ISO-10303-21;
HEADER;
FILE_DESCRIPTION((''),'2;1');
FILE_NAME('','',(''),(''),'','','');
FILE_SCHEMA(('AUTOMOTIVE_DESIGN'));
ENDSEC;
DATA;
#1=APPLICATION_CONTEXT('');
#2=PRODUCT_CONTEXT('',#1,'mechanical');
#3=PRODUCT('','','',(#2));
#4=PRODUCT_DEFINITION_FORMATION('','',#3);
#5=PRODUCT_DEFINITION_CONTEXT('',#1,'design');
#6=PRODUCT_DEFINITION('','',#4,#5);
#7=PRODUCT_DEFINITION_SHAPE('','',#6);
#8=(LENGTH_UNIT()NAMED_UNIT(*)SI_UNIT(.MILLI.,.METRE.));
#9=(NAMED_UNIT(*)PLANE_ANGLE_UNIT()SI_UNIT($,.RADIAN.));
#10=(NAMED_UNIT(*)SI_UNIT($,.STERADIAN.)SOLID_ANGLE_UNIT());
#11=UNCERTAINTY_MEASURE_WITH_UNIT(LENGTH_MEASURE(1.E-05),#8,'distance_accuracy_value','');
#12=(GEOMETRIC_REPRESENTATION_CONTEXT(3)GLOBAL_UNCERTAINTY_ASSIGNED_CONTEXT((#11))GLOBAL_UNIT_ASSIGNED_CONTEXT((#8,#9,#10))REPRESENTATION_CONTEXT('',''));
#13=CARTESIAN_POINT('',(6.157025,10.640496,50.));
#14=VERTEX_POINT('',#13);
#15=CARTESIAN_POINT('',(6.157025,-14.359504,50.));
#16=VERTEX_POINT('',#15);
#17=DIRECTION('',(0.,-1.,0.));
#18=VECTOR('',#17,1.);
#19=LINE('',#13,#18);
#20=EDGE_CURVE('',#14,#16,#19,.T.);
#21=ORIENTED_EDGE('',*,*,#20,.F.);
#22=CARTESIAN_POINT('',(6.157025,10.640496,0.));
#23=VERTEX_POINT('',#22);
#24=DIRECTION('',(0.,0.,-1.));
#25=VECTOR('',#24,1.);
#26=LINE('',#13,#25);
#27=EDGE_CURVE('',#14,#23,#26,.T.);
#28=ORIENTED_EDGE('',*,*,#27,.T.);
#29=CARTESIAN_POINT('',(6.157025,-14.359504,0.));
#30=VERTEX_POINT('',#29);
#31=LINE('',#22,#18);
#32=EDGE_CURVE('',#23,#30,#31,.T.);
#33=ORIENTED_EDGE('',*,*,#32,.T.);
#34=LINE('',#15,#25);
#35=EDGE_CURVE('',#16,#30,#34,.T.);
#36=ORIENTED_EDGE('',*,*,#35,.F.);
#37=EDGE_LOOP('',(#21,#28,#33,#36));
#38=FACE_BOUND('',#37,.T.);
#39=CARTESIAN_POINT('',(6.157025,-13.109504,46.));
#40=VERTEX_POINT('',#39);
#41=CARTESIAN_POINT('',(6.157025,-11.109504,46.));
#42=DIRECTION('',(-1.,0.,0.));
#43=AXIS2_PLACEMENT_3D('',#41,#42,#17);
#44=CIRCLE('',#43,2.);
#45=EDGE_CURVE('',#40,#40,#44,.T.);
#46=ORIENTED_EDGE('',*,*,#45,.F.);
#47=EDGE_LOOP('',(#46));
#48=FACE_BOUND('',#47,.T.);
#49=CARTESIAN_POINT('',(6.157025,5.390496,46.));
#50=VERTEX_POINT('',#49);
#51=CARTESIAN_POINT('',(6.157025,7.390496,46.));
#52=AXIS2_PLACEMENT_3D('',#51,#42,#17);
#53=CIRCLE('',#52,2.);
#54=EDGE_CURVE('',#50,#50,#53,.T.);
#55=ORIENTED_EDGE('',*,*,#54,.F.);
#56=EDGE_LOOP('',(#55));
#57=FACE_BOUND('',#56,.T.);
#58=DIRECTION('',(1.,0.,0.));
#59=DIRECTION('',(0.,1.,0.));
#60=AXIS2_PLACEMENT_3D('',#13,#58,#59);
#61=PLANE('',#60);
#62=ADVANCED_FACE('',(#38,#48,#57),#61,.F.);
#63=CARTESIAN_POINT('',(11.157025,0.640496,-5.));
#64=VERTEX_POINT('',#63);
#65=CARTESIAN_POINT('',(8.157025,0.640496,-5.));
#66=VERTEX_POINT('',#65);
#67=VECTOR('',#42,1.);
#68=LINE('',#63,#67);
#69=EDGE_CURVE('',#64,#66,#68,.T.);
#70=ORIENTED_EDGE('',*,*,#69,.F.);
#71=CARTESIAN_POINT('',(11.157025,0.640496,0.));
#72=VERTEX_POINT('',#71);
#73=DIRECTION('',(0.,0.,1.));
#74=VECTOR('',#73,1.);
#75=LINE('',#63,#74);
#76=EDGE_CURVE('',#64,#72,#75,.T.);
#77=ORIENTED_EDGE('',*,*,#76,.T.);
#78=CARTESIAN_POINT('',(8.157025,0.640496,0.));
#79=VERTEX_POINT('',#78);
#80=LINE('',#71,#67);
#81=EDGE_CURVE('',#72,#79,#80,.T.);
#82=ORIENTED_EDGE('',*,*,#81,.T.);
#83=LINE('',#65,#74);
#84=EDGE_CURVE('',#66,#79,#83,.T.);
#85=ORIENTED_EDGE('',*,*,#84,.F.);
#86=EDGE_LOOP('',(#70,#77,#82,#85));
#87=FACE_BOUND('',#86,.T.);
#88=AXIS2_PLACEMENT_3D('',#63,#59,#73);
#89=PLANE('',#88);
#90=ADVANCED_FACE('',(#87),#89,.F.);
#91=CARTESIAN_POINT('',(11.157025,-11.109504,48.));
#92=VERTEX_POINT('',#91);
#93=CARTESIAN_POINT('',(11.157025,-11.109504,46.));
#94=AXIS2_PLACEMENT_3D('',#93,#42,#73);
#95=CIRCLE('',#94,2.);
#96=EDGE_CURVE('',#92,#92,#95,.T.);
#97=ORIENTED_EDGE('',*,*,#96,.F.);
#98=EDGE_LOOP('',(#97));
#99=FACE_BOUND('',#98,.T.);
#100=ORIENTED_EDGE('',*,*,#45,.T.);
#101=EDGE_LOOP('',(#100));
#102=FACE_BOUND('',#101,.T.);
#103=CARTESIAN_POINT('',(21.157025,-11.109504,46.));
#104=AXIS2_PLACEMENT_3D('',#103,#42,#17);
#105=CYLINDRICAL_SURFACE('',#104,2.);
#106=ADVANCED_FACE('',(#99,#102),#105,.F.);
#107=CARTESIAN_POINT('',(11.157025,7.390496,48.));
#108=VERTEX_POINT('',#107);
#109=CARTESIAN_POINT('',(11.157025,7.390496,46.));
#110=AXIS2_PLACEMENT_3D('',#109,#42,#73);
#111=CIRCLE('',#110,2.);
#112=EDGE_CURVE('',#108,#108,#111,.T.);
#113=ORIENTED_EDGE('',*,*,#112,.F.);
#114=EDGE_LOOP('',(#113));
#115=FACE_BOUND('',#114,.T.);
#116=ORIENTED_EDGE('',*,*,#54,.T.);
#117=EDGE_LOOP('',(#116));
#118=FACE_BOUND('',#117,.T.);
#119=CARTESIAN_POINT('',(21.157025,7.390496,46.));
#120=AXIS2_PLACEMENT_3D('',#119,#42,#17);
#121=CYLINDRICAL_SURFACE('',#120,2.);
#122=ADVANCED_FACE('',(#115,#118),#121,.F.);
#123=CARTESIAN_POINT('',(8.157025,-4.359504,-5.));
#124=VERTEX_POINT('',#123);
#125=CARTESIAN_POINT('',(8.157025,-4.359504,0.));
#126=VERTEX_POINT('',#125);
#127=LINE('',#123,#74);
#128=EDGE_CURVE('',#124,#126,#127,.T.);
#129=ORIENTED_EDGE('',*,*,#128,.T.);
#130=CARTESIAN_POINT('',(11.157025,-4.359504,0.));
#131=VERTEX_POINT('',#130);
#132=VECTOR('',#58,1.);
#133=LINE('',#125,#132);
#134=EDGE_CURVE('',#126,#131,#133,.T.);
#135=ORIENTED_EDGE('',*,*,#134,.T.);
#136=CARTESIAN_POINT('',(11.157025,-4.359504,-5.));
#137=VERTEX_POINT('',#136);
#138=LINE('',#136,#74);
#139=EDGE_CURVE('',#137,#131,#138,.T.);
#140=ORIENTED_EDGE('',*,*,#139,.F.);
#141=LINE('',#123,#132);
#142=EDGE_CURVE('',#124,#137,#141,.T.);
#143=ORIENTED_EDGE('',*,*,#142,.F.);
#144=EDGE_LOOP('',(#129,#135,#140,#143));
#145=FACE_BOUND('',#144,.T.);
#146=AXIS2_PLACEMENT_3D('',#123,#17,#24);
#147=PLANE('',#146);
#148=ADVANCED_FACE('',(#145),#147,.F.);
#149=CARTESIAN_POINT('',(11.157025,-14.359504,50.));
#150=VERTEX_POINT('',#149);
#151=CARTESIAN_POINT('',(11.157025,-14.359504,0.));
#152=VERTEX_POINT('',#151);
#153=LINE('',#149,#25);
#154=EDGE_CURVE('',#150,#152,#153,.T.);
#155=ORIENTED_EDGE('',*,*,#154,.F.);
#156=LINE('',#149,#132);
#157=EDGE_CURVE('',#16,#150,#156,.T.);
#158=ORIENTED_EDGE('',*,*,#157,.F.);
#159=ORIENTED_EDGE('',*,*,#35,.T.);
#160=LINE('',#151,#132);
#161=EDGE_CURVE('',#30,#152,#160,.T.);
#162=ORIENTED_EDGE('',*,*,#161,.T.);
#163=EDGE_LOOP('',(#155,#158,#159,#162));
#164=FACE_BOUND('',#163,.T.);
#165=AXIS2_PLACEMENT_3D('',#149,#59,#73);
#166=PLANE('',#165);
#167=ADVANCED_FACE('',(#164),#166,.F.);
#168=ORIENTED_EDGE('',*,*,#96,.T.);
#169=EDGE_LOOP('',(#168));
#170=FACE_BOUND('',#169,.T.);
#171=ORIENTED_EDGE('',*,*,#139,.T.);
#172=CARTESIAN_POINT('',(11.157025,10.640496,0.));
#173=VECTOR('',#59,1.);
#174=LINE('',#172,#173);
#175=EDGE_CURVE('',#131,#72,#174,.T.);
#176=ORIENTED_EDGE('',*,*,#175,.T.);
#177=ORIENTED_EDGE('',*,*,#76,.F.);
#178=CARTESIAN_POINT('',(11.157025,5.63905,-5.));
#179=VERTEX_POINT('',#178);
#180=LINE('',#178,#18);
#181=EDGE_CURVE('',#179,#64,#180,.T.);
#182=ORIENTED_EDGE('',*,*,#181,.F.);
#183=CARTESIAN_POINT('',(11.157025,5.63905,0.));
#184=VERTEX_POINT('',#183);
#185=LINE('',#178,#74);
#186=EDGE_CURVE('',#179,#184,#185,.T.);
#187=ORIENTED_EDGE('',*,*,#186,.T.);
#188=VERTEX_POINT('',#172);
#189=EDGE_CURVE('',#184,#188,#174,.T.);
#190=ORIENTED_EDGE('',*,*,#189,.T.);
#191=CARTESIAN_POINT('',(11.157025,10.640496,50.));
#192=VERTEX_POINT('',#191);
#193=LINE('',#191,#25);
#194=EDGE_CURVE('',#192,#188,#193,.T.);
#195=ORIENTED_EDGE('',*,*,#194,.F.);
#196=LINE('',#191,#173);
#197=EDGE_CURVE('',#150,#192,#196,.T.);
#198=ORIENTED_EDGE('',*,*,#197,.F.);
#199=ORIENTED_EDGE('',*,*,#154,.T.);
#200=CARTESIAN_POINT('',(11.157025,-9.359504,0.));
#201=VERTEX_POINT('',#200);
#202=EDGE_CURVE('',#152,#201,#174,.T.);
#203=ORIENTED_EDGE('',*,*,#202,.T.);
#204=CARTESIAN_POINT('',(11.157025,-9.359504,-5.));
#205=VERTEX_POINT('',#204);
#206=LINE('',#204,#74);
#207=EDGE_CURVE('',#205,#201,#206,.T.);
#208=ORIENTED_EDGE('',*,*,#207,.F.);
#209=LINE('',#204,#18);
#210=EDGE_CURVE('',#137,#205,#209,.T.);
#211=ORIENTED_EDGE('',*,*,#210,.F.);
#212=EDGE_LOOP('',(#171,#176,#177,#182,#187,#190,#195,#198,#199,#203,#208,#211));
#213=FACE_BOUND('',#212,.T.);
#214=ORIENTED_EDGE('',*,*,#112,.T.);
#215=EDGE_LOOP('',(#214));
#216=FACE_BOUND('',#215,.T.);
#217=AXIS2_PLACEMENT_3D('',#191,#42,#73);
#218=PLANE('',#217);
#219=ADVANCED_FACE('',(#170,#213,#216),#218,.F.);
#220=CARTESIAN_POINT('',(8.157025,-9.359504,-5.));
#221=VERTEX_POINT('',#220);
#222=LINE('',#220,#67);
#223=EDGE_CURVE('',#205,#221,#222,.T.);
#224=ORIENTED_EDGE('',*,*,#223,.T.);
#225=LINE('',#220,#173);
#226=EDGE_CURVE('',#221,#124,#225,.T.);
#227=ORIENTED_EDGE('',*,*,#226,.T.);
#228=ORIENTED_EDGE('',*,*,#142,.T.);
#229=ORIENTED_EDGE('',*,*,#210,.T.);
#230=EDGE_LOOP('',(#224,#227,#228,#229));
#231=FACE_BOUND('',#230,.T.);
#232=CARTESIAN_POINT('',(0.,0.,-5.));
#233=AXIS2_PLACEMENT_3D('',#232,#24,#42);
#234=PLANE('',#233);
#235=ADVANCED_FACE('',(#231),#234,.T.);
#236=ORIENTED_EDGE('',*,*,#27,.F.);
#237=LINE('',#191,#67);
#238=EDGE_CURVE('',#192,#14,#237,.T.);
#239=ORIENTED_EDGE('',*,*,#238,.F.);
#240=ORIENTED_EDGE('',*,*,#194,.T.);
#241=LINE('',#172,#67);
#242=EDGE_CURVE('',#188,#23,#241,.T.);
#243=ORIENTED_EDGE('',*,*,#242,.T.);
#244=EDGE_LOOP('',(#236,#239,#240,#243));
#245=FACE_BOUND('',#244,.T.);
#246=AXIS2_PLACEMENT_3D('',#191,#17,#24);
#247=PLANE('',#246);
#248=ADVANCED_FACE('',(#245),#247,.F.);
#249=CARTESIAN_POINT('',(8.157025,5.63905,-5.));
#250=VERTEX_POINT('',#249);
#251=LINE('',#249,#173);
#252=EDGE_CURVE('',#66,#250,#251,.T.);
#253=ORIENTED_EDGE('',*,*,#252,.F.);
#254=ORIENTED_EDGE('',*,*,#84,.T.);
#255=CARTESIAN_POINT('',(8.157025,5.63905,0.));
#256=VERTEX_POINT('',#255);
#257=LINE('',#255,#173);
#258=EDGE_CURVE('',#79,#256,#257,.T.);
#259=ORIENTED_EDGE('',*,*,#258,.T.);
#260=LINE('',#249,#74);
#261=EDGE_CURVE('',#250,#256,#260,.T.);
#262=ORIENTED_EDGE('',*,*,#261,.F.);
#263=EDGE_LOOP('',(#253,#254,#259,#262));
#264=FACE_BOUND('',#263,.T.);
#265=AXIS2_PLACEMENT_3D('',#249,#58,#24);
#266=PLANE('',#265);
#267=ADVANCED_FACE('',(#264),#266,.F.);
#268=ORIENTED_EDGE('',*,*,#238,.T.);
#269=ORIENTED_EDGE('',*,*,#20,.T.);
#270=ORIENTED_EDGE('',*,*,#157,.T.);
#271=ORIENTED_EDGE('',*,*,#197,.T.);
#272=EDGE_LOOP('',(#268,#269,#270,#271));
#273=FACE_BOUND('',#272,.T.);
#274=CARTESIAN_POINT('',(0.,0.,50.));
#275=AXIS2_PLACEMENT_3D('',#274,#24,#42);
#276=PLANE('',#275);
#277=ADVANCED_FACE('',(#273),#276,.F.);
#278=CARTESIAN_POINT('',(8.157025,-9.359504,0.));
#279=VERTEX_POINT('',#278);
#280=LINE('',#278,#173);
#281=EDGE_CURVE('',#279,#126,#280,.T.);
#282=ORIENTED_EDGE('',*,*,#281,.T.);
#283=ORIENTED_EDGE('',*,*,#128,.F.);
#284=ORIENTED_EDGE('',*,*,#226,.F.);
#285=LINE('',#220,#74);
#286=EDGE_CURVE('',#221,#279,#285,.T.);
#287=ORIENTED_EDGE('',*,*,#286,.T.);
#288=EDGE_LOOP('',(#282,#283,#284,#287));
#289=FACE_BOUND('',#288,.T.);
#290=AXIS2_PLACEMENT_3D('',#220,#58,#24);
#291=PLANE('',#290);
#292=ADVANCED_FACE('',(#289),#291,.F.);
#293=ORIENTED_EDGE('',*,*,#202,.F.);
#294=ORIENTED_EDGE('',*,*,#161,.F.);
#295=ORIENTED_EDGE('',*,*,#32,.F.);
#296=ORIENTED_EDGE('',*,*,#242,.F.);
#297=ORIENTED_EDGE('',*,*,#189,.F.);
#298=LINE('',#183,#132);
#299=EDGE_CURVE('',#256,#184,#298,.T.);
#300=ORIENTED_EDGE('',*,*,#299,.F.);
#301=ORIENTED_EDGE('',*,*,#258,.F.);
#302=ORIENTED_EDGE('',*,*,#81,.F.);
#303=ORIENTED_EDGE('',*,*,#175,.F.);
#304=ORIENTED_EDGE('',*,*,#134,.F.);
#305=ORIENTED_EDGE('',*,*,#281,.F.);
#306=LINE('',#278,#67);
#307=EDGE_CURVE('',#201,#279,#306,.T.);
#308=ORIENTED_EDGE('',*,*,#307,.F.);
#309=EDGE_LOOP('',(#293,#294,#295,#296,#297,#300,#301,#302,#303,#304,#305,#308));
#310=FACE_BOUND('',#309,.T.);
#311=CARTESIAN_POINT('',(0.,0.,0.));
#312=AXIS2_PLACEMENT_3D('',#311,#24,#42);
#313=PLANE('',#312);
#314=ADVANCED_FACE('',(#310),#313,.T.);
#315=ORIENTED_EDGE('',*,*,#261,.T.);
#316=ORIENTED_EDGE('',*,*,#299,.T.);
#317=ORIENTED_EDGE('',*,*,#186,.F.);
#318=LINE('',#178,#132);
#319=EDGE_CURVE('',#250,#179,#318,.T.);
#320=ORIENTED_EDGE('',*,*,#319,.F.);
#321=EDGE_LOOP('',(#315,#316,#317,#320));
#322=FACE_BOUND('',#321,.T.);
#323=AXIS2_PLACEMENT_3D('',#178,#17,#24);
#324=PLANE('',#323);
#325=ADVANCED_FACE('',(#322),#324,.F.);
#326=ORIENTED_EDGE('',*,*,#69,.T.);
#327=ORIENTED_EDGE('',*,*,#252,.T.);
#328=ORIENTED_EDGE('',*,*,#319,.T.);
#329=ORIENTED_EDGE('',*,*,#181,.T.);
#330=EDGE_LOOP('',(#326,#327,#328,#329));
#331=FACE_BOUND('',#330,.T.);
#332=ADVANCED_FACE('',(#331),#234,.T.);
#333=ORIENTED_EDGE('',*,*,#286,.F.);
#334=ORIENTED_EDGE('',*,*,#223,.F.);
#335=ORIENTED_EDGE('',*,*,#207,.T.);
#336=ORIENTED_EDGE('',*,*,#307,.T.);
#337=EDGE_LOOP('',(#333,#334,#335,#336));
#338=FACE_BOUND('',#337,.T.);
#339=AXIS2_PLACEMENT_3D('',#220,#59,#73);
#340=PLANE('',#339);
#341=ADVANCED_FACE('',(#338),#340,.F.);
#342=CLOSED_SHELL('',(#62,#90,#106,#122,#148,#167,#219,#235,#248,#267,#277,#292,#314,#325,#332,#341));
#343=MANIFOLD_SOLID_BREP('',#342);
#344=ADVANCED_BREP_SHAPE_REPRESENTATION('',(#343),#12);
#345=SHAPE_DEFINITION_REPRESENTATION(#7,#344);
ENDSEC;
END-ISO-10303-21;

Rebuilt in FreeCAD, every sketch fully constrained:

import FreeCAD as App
import Part
import Sketcher


def add_polygon(sketch, points):
    """Adds a closed chain of lines whose ends are joined by coincident constraints."""
    first, n = sketch.GeometryCount, len(points)
    for a, b in zip(points, points[1:] + points[:1]):
        sketch.addGeometry(Part.LineSegment(App.Vector(*a, 0), App.Vector(*b, 0)), False)
    for i in range(n):
        sketch.addConstraint(Sketcher.Constraint("Coincident", first + i, 2, first + (i + 1) % n, 1))

doc = App.newDocument("Part")
body = doc.addObject("PartDesign::Body", "Body")

sketch1 = body.newObject("Sketcher::SketchObject", "Sketch")
sketch1.AttachmentSupport = (doc.getObject("XY_Plane"), [""])
sketch1.MapMode = "FlatFace"
add_polygon(sketch1, [(6, 11), (6, -14), (11, -14), (11, 11)])
sketch1.addConstraint(Sketcher.Constraint("Vertical", 0))
sketch1.addConstraint(Sketcher.Constraint("Horizontal", 1))
sketch1.addConstraint(Sketcher.Constraint("Vertical", 2))
sketch1.addConstraint(Sketcher.Constraint("Horizontal", 3))
sketch1.addConstraint(Sketcher.Constraint("DistanceX", 1, 1, 1, 2, 5.0))
sketch1.addConstraint(Sketcher.Constraint("DistanceY", 0, 2, 0, 1, 25.0))
sketch1.addConstraint(Sketcher.Constraint("DistanceX", -1, 1, 0, 2, 6.157025))
sketch1.addConstraint(Sketcher.Constraint("DistanceY", 0, 2, -1, 1, 14.359504))
pad1 = body.newObject("PartDesign::Pad", "Pad")
pad1.Profile = sketch1
pad1.Length = 50

sketch2 = body.newObject("Sketcher::SketchObject", "Sketch001")
sketch2.AttachmentSupport = (doc.getObject("YZ_Plane"), [""])
sketch2.MapMode = "FlatFace"
sketch2.AttachmentOffset = App.Placement(App.Vector(0, 0, 6.157025), App.Rotation())
sketch2.addGeometry(Part.Circle(App.Vector(-11.1, 46, 0), App.Vector(0, 0, 1), 2), False)
sketch2.addGeometry(Part.Circle(App.Vector(7.4, 46, 0), App.Vector(0, 0, 1), 2), False)
sketch2.addConstraint(Sketcher.Constraint("Equal", 0, 1))
sketch2.addConstraint(Sketcher.Constraint("Horizontal", 0, 3, 1, 3))
sketch2.addConstraint(Sketcher.Constraint("Diameter", 0, 4.0))
sketch2.addConstraint(Sketcher.Constraint("DistanceY", -1, 1, 0, 3, 46.0))
sketch2.addConstraint(Sketcher.Constraint("DistanceX", 0, 3, 1, 3, 18.5))
sketch2.addConstraint(Sketcher.Constraint("DistanceX", 0, 3, -1, 1, 11.109504))
pocket1 = body.newObject("PartDesign::Pocket", "Pocket")
pocket1.Profile = sketch2
pocket1.Length = 15
pocket1.Reversed = True

sketch3 = body.newObject("Sketcher::SketchObject", "Sketch002")
sketch3.AttachmentSupport = (doc.getObject("XY_Plane"), [""])
sketch3.MapMode = "FlatFace"
add_polygon(sketch3, [(11.2, 5.6), (11.2, 0.6), (8.2, 0.6), (8.2, 5.6)])
add_polygon(sketch3, [(11.2, -4.4), (11.2, -9.4), (8.2, -9.4), (8.2, -4.4)])
sketch3.addConstraint(Sketcher.Constraint("Vertical", 0))
sketch3.addConstraint(Sketcher.Constraint("Horizontal", 1))
sketch3.addConstraint(Sketcher.Constraint("Vertical", 2))
sketch3.addConstraint(Sketcher.Constraint("Horizontal", 3))
sketch3.addConstraint(Sketcher.Constraint("Vertical", 4))
sketch3.addConstraint(Sketcher.Constraint("Horizontal", 5))
sketch3.addConstraint(Sketcher.Constraint("Vertical", 6))
sketch3.addConstraint(Sketcher.Constraint("Horizontal", 7))
sketch3.addConstraint(Sketcher.Constraint("Vertical", 3, 2, 4, 2))
sketch3.addConstraint(Sketcher.Constraint("Vertical", 2, 2, 5, 2))
sketch3.addConstraint(Sketcher.Constraint("DistanceX", 1, 2, 1, 1, 3.0))
sketch3.addConstraint(Sketcher.Constraint("DistanceY", 4, 2, 4, 1, 5.0))
sketch3.addConstraint(Sketcher.Constraint("DistanceY", 4, 2, 0, 2, 10.0))
sketch3.addConstraint(Sketcher.Constraint("DistanceY", 0, 2, 0, 1, 4.998554))
sketch3.addConstraint(Sketcher.Constraint("DistanceY", -1, 1, 2, 2, 5.63905))
sketch3.addConstraint(Sketcher.Constraint("DistanceX", -1, 1, 0, 2, 11.157025))
pad2 = body.newObject("PartDesign::Pad", "Pad001")
pad2.Profile = sketch3
pad2.Length = 5
pad2.Reversed = True

doc.recompute()
